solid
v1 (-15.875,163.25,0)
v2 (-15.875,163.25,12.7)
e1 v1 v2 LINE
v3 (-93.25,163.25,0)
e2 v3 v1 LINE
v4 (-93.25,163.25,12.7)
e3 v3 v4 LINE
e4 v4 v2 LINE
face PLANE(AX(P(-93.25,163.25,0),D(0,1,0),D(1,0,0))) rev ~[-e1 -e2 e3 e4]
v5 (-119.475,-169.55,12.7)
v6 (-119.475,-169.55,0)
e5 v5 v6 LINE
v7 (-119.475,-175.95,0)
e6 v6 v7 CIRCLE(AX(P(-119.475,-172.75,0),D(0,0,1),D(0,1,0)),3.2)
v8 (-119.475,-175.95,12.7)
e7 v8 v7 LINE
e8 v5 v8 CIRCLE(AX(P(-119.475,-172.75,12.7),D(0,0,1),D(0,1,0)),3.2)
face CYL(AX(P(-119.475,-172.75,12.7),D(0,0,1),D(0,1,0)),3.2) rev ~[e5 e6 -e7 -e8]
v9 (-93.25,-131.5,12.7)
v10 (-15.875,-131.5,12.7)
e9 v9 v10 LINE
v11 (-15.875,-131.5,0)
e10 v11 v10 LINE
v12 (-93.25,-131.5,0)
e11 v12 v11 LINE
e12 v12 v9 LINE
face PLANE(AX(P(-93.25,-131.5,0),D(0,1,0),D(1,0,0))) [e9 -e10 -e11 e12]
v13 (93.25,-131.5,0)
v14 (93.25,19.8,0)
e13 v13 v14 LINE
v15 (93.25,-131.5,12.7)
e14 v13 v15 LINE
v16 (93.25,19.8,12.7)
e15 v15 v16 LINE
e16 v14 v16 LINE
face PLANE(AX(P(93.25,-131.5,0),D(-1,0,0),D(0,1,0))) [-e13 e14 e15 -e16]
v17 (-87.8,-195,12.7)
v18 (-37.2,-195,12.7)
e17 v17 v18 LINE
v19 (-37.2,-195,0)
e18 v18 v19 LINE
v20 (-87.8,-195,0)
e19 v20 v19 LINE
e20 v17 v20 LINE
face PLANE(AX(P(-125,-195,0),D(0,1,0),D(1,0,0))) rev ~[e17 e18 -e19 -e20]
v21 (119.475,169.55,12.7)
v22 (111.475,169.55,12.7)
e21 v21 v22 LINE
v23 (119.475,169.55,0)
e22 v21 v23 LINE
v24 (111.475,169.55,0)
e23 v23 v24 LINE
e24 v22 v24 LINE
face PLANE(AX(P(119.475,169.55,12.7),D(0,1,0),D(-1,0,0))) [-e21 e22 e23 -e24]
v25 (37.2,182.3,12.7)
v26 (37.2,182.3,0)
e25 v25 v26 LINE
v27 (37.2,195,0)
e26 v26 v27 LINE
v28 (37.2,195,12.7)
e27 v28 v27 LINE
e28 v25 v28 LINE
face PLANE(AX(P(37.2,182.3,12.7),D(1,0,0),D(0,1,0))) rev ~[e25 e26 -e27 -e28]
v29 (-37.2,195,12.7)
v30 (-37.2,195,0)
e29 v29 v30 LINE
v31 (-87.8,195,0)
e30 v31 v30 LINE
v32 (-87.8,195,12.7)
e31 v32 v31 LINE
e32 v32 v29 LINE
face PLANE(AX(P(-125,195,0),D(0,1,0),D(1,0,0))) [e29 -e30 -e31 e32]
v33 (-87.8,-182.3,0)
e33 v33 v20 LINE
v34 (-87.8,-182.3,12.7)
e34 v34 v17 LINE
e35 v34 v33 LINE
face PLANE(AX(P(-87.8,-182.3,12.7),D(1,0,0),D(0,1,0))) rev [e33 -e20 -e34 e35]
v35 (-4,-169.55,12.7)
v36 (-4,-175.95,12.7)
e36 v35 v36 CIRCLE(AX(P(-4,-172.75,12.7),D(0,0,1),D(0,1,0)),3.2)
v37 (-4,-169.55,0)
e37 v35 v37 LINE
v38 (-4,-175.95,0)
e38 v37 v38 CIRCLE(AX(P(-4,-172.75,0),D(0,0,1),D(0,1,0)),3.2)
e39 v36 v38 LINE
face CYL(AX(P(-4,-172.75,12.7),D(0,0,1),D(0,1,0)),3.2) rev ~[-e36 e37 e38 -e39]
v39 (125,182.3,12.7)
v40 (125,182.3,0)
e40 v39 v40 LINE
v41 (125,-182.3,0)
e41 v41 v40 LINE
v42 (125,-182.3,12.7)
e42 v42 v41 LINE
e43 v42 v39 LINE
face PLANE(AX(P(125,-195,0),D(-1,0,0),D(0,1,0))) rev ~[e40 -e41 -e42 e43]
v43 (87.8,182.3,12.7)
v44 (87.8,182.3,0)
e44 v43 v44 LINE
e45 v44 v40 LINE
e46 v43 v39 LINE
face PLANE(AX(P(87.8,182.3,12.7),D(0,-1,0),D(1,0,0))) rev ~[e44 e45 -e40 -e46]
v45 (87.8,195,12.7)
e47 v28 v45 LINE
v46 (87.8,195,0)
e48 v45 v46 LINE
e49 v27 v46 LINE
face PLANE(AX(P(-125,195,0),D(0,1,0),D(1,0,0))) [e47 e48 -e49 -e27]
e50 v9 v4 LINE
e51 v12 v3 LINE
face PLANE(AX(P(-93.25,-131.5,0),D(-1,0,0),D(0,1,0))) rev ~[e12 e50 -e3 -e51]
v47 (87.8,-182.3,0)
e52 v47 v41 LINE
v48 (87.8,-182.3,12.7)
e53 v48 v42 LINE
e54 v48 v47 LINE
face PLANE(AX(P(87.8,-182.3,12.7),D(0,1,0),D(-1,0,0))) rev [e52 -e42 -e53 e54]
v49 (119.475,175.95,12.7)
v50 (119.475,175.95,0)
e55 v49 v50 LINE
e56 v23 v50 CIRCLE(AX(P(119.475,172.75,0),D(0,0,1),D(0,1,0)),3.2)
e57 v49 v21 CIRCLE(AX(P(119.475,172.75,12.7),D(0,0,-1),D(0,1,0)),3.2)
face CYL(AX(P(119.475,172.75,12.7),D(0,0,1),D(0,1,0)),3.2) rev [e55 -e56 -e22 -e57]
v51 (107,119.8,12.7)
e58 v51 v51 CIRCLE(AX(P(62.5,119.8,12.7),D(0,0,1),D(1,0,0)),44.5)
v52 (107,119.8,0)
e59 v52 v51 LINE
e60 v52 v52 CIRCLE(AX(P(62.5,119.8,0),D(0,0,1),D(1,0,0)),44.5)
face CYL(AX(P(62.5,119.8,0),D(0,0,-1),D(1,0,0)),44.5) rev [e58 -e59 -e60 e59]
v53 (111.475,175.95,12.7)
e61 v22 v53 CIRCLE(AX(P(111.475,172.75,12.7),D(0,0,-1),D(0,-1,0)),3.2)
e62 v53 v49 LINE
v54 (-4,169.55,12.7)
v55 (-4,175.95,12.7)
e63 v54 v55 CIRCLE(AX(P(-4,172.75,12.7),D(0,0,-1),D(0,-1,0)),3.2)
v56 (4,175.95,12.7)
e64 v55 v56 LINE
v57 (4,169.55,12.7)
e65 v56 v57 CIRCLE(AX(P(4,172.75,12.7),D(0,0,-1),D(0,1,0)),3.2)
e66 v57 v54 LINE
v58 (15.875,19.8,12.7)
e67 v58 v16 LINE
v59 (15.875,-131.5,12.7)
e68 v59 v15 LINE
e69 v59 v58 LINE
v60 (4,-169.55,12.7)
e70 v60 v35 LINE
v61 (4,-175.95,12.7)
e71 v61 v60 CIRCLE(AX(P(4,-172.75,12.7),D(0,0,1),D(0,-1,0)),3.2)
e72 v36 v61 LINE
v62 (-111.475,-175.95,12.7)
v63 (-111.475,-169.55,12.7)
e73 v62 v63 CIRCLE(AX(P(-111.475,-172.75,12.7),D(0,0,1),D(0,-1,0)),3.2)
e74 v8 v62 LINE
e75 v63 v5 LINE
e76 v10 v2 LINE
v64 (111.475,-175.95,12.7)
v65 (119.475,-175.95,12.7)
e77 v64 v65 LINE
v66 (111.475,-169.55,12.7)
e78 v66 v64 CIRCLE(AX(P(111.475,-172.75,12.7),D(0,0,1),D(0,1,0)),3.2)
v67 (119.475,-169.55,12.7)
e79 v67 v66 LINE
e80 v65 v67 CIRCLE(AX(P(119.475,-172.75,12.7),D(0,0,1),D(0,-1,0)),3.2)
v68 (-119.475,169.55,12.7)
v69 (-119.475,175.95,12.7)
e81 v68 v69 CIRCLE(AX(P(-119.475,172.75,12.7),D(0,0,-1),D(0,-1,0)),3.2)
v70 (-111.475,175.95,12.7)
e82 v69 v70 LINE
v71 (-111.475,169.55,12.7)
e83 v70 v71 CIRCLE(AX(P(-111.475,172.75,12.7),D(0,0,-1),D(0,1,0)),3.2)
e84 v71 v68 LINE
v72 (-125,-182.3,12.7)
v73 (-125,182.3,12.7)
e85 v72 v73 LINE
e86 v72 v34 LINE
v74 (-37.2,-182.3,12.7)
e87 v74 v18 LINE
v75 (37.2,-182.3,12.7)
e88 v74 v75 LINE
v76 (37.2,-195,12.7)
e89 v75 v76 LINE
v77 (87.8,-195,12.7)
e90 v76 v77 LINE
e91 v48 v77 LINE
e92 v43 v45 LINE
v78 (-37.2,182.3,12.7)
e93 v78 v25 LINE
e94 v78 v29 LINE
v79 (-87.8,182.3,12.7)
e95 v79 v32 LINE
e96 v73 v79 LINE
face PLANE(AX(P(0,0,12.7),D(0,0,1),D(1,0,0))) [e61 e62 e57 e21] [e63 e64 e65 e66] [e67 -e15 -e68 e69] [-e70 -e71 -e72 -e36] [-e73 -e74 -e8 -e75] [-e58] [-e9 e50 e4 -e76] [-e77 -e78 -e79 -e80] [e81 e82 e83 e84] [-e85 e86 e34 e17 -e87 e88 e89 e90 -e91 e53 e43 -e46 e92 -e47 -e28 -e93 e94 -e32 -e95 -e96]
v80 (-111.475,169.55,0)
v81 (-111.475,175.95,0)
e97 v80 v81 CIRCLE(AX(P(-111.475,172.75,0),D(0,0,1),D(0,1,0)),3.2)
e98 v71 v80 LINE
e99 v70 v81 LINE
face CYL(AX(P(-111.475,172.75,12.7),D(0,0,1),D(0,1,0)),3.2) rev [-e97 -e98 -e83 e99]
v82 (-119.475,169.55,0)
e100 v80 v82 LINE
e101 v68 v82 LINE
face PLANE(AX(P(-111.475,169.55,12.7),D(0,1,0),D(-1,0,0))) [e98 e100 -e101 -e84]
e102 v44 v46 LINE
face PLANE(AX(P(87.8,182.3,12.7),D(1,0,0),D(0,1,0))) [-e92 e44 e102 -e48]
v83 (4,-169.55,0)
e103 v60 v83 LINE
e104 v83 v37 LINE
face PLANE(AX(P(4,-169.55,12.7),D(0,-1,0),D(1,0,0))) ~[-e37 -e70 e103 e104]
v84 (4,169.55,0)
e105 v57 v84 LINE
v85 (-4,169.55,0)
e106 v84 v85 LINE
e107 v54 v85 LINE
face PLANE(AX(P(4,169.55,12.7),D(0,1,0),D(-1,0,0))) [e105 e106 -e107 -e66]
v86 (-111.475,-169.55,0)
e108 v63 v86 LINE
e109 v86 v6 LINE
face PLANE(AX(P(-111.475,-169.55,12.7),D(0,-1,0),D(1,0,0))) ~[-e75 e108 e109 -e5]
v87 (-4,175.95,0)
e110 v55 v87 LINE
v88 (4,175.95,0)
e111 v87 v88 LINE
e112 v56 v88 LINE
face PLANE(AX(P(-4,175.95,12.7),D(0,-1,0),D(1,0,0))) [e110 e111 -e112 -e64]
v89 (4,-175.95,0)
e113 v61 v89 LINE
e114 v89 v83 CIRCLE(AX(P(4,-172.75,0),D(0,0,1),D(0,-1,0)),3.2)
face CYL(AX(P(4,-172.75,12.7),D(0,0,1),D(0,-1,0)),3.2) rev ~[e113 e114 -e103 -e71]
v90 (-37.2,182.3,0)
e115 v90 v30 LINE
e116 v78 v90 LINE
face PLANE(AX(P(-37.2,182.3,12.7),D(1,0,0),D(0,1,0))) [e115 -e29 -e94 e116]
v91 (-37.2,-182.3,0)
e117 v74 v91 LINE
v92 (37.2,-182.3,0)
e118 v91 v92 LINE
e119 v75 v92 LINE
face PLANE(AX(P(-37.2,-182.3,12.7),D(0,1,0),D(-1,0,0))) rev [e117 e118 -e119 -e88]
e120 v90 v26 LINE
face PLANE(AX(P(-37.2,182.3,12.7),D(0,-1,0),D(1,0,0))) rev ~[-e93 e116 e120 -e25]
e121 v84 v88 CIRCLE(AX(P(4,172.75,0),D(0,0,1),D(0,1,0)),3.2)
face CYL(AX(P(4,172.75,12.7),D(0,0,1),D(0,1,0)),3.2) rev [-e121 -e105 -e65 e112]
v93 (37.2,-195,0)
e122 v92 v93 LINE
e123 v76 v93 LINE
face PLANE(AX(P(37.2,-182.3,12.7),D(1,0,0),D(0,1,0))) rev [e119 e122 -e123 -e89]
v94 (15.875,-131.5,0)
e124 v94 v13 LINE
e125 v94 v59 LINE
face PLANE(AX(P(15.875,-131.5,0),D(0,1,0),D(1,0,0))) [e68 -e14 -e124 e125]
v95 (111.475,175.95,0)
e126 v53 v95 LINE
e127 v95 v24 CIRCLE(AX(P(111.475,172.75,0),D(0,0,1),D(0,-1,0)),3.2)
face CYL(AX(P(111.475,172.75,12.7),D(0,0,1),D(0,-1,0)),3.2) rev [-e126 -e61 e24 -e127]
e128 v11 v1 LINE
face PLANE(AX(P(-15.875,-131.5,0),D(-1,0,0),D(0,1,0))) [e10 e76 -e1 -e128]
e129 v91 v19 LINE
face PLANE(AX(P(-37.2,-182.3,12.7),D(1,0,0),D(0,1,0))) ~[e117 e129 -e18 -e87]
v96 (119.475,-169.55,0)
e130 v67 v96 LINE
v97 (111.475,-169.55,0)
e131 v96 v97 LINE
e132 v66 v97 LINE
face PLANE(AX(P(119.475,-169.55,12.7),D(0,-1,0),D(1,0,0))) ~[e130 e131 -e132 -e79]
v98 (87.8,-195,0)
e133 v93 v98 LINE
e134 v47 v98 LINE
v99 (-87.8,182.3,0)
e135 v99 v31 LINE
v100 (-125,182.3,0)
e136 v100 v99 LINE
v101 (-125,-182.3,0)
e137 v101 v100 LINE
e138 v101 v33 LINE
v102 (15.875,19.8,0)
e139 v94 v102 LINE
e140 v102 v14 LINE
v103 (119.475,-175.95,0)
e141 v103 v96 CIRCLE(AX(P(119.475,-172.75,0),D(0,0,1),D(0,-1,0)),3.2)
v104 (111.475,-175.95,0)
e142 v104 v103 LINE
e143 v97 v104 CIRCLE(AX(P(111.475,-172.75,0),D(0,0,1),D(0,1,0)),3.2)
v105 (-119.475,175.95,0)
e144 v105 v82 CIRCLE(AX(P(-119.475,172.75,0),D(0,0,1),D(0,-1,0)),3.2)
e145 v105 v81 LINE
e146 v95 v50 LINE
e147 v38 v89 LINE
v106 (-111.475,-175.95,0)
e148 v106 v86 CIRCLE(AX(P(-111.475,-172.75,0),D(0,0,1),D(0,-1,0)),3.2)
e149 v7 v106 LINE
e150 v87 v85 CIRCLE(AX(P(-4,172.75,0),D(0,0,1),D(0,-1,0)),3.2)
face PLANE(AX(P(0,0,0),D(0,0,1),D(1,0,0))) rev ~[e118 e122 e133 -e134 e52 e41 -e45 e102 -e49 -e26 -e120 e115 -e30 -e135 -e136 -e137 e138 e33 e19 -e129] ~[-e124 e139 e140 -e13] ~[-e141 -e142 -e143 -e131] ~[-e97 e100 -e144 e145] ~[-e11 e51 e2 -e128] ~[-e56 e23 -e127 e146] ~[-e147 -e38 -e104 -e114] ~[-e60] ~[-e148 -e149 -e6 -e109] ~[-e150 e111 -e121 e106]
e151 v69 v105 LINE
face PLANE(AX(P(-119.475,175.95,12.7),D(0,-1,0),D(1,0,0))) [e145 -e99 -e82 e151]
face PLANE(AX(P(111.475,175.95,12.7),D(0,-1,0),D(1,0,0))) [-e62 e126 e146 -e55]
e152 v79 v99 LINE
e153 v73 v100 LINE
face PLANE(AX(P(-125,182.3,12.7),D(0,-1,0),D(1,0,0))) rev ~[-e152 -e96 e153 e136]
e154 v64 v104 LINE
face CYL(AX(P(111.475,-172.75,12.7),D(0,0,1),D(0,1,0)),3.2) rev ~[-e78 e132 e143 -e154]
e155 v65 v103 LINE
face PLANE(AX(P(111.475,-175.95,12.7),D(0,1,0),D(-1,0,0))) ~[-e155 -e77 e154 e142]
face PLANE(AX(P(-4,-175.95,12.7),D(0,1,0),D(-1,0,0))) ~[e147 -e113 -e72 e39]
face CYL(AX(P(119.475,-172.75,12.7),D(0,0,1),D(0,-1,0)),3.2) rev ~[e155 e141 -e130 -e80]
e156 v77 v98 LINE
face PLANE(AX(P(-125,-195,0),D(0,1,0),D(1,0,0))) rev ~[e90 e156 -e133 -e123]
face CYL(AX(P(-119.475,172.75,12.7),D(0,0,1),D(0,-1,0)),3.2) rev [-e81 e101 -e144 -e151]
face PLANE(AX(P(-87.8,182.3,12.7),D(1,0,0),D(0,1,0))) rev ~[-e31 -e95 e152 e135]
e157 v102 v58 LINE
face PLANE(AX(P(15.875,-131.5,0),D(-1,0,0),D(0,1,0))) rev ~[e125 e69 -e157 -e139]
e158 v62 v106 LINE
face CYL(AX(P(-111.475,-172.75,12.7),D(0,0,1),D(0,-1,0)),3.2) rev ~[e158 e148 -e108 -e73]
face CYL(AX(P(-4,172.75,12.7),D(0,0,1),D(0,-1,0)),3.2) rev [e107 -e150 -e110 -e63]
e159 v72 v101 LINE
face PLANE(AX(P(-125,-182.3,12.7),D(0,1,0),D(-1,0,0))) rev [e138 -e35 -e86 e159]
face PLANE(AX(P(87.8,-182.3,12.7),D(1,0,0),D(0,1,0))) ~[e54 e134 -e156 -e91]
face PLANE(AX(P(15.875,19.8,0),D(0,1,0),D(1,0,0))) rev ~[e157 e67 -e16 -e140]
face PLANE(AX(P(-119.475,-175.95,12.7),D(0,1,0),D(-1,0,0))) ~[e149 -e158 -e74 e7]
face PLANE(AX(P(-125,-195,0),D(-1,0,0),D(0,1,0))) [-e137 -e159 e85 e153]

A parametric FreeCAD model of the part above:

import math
import FreeCAD as App
import Part
import Sketcher
from FreeCAD import Vector

doc = App.newDocument("Part")
body = doc.addObject("PartDesign::Body", "Body")

# Sketch on XY plane
sketch1 = body.newObject("Sketcher::SketchObject", "Sketch")
sketch1.AttachmentSupport = (doc.getObject("XY_Plane"), [""])
sketch1.MapMode = "FlatFace"
sketch1.addGeometry([
    Part.LineSegment(Vector(-125, 195, 0), Vector(-125, -195, 0)),  # 0
    Part.LineSegment(Vector(-125, -195, 0), Vector(125, -195, 0)),  # 1
    Part.LineSegment(Vector(125, -195, 0), Vector(125, 195, 0)),  # 2
    Part.LineSegment(Vector(125, 195, 0), Vector(-125, 195, 0)),  # 3
    Part.LineSegment(Vector(-16, -132, 0), Vector(-93, -132, 0)),  # 4
    Part.LineSegment(Vector(-93, -132, 0), Vector(-93, 163, 0)),  # 5
    Part.LineSegment(Vector(-93, 163, 0), Vector(-16, 163, 0)),  # 6
    Part.LineSegment(Vector(-16, 163, 0), Vector(-16, -132, 0)),  # 7
    Part.LineSegment(Vector(93, -132, 0), Vector(16, -132, 0)),  # 8
    Part.LineSegment(Vector(16, -132, 0), Vector(16, 20, 0)),  # 9
    Part.LineSegment(Vector(16, 20, 0), Vector(93, 20, 0)),  # 10
    Part.LineSegment(Vector(93, 20, 0), Vector(93, -132, 0)),  # 11
    Part.Circle(Vector(62, 120, 0), Vector(0, 0, 1), 44),  # 12
], False)
sketch1.addConstraint([
    Sketcher.Constraint("Coincident", 0, 2, 1, 1),
    Sketcher.Constraint("Coincident", 1, 2, 2, 1),
    Sketcher.Constraint("Coincident", 2, 2, 3, 1),
    Sketcher.Constraint("Coincident", 3, 2, 0, 1),
    Sketcher.Constraint("Coincident", 4, 2, 5, 1),
    Sketcher.Constraint("Coincident", 5, 2, 6, 1),
    Sketcher.Constraint("Coincident", 6, 2, 7, 1),
    Sketcher.Constraint("Coincident", 7, 2, 4, 1),
    Sketcher.Constraint("Coincident", 8, 2, 9, 1),
    Sketcher.Constraint("Coincident", 9, 2, 10, 1),
    Sketcher.Constraint("Coincident", 10, 2, 11, 1),
    Sketcher.Constraint("Coincident", 11, 2, 8, 1),
    Sketcher.Constraint("Vertical", 0),
    Sketcher.Constraint("Horizontal", 1),
    Sketcher.Constraint("Vertical", 2),
    Sketcher.Constraint("Horizontal", 3),
    Sketcher.Constraint("Horizontal", 4),
    Sketcher.Constraint("Vertical", 5),
    Sketcher.Constraint("Horizontal", 6),
    Sketcher.Constraint("Vertical", 7),
    Sketcher.Constraint("Horizontal", 8),
    Sketcher.Constraint("Vertical", 9),
    Sketcher.Constraint("Horizontal", 10),
    Sketcher.Constraint("Vertical", 11),
    Sketcher.Constraint("Symmetric", 0, 2, 2, 2, -1, 1),
    Sketcher.Constraint("Symmetric", 7, 2, 8, 2, -2),
    Sketcher.Constraint("Equal", 6, 8),
    Sketcher.Constraint("Diameter", 12, 89.0),
    Sketcher.Constraint("DistanceX", 1, 1, 1, 2, 250.0),
    Sketcher.Constraint("DistanceY", 0, 2, 0, 1, 390.0),
    Sketcher.Constraint("DistanceY", 9, 1, 9, 2, 151.3),
    Sketcher.Constraint("DistanceY", 9, 2, 12, 3, 100.0),
    Sketcher.Constraint("DistanceY", 5, 1, 5, 2, 294.75),
    Sketcher.Constraint("DistanceX", -1, 1, 12, 3, 62.5),
    Sketcher.Constraint("DistanceY", -1, 1, 12, 3, 119.8),
    Sketcher.Constraint("DistanceX", 4, 2, 4, 1, 77.375),
    Sketcher.Constraint("DistanceX", 4, 2, -1, 1, 93.25),
])
pad1 = body.newObject("PartDesign::Pad", "Pad")
pad1.Profile = sketch1
pad1.Length = 12.7

# Sketch on XY plane
sketch2 = body.newObject("Sketcher::SketchObject", "Sketch001")
sketch2.AttachmentSupport = (doc.getObject("XY_Plane"), [""])
sketch2.MapMode = "FlatFace"
sketch2.AttachmentOffset = App.Placement(Vector(0, 0, 12.7), App.Rotation())
sketch2.addGeometry([
    Part.LineSegment(Vector(-125, 195, 0), Vector(-125, 182.3, 0)),  # 0
    Part.LineSegment(Vector(-125, 182.3, 0), Vector(-87.8, 182.3, 0)),  # 1
    Part.LineSegment(Vector(-87.8, 182.3, 0), Vector(-87.8, 195, 0)),  # 2
    Part.LineSegment(Vector(-87.8, 195, 0), Vector(-125, 195, 0)),  # 3
    Part.LineSegment(Vector(-37.2, 195, 0), Vector(-37.2, 182.3, 0)),  # 4
    Part.LineSegment(Vector(-37.2, 182.3, 0), Vector(37.2, 182.3, 0)),  # 5
    Part.LineSegment(Vector(37.2, 182.3, 0), Vector(37.2, 195, 0)),  # 6
    Part.LineSegment(Vector(37.2, 195, 0), Vector(-37.2, 195, 0)),  # 7
    Part.LineSegment(Vector(87.8, 195, 0), Vector(87.8, 182.3, 0)),  # 8
    Part.LineSegment(Vector(87.8, 182.3, 0), Vector(125, 182.3, 0)),  # 9
    Part.LineSegment(Vector(125, 182.3, 0), Vector(125, 195, 0)),  # 10
    Part.LineSegment(Vector(125, 195, 0), Vector(87.8, 195, 0)),  # 11
    Part.LineSegment(Vector(-111.5, 175.9, 0), Vector(-119.5, 175.9, 0)),  # 12
    Part.ArcOfCircle(Part.Circle(Vector(-119.5, 172.8, 0), Vector(0, 0, 1), 3.2), math.radians(90), math.radians(270)),  # 13
    Part.LineSegment(Vector(-119.5, 169.6, 0), Vector(-111.5, 169.6, 0)),  # 14
    Part.ArcOfCircle(Part.Circle(Vector(-111.5, 172.8, 0), Vector(0, 0, 1), 3.2), math.radians(-90), math.radians(90)),  # 15
    Part.LineSegment(Vector(4, 175.9, 0), Vector(-4, 175.9, 0)),  # 16
    Part.ArcOfCircle(Part.Circle(Vector(-4, 172.8, 0), Vector(0, 0, 1), 3.2), math.radians(90), math.radians(270)),  # 17
    Part.LineSegment(Vector(-4, 169.6, 0), Vector(4, 169.6, 0)),  # 18
    Part.ArcOfCircle(Part.Circle(Vector(4, 172.8, 0), Vector(0, 0, 1), 3.2), math.radians(-90), math.radians(90)),  # 19
    Part.LineSegment(Vector(119.5, 175.9, 0), Vector(111.5, 175.9, 0)),  # 20
    Part.ArcOfCircle(Part.Circle(Vector(111.5, 172.8, 0), Vector(0, 0, 1), 3.2), math.radians(90), math.radians(270)),  # 21
    Part.LineSegment(Vector(111.5, 169.6, 0), Vector(119.5, 169.6, 0)),  # 22
    Part.ArcOfCircle(Part.Circle(Vector(119.5, 172.8, 0), Vector(0, 0, 1), 3.2), math.radians(-90), math.radians(90)),  # 23
], False)
sketch2.addConstraint([
    Sketcher.Constraint("Coincident", 0, 2, 1, 1),
    Sketcher.Constraint("Coincident", 1, 2, 2, 1),
    Sketcher.Constraint("Coincident", 2, 2, 3, 1),
    Sketcher.Constraint("Coincident", 3, 2, 0, 1),
    Sketcher.Constraint("Coincident", 4, 2, 5, 1),
    Sketcher.Constraint("Coincident", 5, 2, 6, 1),
    Sketcher.Constraint("Coincident", 6, 2, 7, 1),
    Sketcher.Constraint("Coincident", 7, 2, 4, 1),
    Sketcher.Constraint("Coincident", 8, 2, 9, 1),
    Sketcher.Constraint("Coincident", 9, 2, 10, 1),
    Sketcher.Constraint("Coincident", 10, 2, 11, 1),
    Sketcher.Constraint("Coincident", 11, 2, 8, 1),
    Sketcher.Constraint("Tangent", 12, 2, 13, 1),
    Sketcher.Constraint("Tangent", 13, 2, 14, 1),
    Sketcher.Constraint("Tangent", 14, 2, 15, 1),
    Sketcher.Constraint("Tangent", 15, 2, 12, 1),
    Sketcher.Constraint("Tangent", 16, 2, 17, 1),
    Sketcher.Constraint("Tangent", 17, 2, 18, 1),
    Sketcher.Constraint("Tangent", 18, 2, 19, 1),
    Sketcher.Constraint("Tangent", 19, 2, 16, 1),
    Sketcher.Constraint("Tangent", 20, 2, 21, 1),
    Sketcher.Constraint("Tangent", 21, 2, 22, 1),
    Sketcher.Constraint("Tangent", 22, 2, 23, 1),
    Sketcher.Constraint("Tangent", 23, 2, 20, 1),
    Sketcher.Constraint("Vertical", 0),
    Sketcher.Constraint("Horizontal", 1),
    Sketcher.Constraint("Vertical", 2),
    Sketcher.Constraint("Horizontal", 3),
    Sketcher.Constraint("Vertical", 4),
    Sketcher.Constraint("Horizontal", 5),
    Sketcher.Constraint("Vertical", 6),
    Sketcher.Constraint("Horizontal", 7),
    Sketcher.Constraint("Vertical", 8),
    Sketcher.Constraint("Horizontal", 9),
    Sketcher.Constraint("Vertical", 10),
    Sketcher.Constraint("Horizontal", 11),
    Sketcher.Constraint("Horizontal", 12),
    Sketcher.Constraint("Horizontal", 14),
    Sketcher.Constraint("Horizontal", 16),
    Sketcher.Constraint("Horizontal", 18),
    Sketcher.Constraint("Horizontal", 20),
    Sketcher.Constraint("Horizontal", 22),
    Sketcher.Constraint("Equal", 15, 17),
    Sketcher.Constraint("Equal", 19, 21),
    Sketcher.Constraint("Symmetric", 15, 3, 21, 3, -2),
    Sketcher.Constraint("Symmetric", 1, 2, 8, 2, -2),
    Sketcher.Constraint("Symmetric", 3, 2, 10, 2, -2),
    Sketcher.Constraint("Horizontal", 15, 3, 17, 3),
    Sketcher.Constraint("Horizontal", 1, 2, 4, 2),
    Sketcher.Constraint("Horizontal", 3, 2, 6, 2),
    Sketcher.Constraint("Equal", 14, 16),
    Sketcher.Constraint("Equal", 18, 20),
    Sketcher.Constraint("Radius", 13, 3.2),
    Sketcher.Constraint("DistanceX", 12, 2, 12, 1, 8.0),
    Sketcher.Constraint("DistanceX", 1, 1, 1, 2, 37.2),
    Sketcher.Constraint("DistanceX", 5, 1, 5, 2, 74.4),
    Sketcher.Constraint("DistanceY", 0, 2, 0, 1, 12.7),
    Sketcher.Constraint("DistanceX", 17, 3, -1, 1, 4.0),
    Sketcher.Constraint("DistanceX", 0, 2, -1, 1, 125.0),
    Sketcher.Constraint("DistanceY", -1, 1, 2, 2, 195.0),
    Sketcher.Constraint("DistanceX", 4, 2, -1, 1, 37.2),
    Sketcher.Constraint("DistanceY", -1, 1, 13, 3, 172.75),
    Sketcher.Constraint("DistanceX", 15, 3, 21, 3, 222.95),
])
pocket1 = body.newObject("PartDesign::Pocket", "Pocket")
pocket1.Profile = sketch2
pocket1.Type = "ThroughAll"
doc.recompute()

mirrored = body.newObject("PartDesign::Mirrored", "Mirrored")
mirrored.Originals = [pocket1]
mirrored.MirrorPlane = (doc.getObject("XZ_Plane"), [""])
body.Tip = mirrored

doc.recompute()
